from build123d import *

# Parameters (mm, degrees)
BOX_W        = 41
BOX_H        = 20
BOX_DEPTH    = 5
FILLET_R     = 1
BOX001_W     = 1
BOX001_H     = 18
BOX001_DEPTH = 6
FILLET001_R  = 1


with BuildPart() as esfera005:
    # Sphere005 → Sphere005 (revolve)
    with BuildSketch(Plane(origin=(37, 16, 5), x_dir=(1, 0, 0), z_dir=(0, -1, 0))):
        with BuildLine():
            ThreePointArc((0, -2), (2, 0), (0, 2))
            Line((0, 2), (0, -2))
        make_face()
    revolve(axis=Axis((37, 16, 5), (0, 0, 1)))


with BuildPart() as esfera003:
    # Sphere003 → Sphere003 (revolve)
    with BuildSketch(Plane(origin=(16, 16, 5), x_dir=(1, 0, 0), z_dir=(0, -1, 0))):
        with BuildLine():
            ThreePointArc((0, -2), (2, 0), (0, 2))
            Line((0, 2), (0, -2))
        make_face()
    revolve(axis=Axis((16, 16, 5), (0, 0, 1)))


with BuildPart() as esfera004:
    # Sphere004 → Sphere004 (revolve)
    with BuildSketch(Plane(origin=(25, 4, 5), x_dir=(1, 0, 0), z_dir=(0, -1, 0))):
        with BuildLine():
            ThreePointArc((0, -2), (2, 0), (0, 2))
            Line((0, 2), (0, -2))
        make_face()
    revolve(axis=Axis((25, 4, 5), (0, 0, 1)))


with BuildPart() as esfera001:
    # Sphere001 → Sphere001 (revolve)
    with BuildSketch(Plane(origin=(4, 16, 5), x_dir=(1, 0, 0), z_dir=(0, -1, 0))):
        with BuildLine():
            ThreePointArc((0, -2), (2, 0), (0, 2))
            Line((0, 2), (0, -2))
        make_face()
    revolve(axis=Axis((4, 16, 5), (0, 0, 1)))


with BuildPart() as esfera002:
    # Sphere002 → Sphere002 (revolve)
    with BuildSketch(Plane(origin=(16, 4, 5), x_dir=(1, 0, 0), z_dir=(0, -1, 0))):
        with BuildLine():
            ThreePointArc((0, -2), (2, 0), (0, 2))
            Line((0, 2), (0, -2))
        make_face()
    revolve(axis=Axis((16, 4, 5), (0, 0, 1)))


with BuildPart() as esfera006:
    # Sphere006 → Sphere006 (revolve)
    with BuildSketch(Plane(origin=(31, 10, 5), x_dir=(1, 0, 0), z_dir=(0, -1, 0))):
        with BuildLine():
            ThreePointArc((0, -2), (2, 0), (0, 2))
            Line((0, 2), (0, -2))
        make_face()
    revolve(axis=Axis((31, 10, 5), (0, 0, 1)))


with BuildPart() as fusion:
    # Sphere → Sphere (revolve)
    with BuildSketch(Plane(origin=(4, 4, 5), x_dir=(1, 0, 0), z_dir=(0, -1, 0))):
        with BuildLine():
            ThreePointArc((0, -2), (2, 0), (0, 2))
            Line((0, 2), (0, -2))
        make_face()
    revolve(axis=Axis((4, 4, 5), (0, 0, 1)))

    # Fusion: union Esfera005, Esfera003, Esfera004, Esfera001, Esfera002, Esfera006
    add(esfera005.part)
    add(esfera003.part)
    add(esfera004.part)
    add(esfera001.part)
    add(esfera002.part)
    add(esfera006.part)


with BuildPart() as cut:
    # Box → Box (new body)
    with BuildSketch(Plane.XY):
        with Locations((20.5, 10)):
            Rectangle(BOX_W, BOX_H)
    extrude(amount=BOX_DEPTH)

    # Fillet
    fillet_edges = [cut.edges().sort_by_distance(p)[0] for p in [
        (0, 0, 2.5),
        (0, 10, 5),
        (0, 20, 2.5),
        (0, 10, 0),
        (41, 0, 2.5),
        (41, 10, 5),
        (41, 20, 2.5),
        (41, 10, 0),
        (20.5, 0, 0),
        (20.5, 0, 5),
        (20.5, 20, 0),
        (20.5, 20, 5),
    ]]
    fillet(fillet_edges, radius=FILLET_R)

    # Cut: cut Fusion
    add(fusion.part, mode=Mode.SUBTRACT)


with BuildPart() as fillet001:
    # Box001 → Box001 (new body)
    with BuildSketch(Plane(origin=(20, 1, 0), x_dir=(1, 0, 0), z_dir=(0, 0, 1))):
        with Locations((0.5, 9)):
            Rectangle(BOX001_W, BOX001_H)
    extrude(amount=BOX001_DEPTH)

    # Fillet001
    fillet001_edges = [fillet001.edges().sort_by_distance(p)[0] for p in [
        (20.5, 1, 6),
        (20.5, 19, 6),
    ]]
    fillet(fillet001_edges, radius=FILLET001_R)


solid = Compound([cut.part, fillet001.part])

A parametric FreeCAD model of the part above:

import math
import FreeCAD as App
import Part
import Sketcher
Q = App.Units.Quantity


def edges_at(feature, points):
    """Names of the edges that pass closest to the given points."""
    edges = feature.Shape.Edges
    near = lambda p: min(range(len(edges)), key=lambda i: edges[i].distToShape(Part.Vertex(*p))[0])
    return sorted({f"Edge{near(p) + 1}" for p in points})


def add_polygon(sketch, points):
    """Adds a closed chain of lines whose ends are joined by coincident constraints."""
    first, n = sketch.GeometryCount, len(points)
    for a, b in zip(points, points[1:] + points[:1]):
        sketch.addGeometry(Part.LineSegment(App.Vector(*a, 0), App.Vector(*b, 0)), False)
    for i in range(n):
        sketch.addConstraint(Sketcher.Constraint("Coincident", first + i, 2, first + (i + 1) % n, 1))

doc = App.newDocument("Part")
params = doc.addObject("Spreadsheet::Sheet", "Params")
for row, (alias, value) in enumerate([
    ("sketch1_radius", "2 mm"),
    ("revolution_angle", "360 deg"),
    ("sketch2_radius", "2 mm"),
    ("revolution2_angle", "360 deg"),
    ("sketch3_radius", "2 mm"),
    ("revolution3_angle", "360 deg"),
    ("sketch4_radius", "2 mm"),
    ("revolution4_angle", "360 deg"),
    ("sketch5_radius", "2 mm"),
    ("revolution5_angle", "360 deg"),
    ("sketch6_radius", "2 mm"),
    ("revolution6_angle", "360 deg"),
    ("sketch7_radius", "2 mm"),
    ("revolution7_angle", "360 deg"),
    ("sketch8_width", "41 mm"),
    ("sketch8_height", "20 mm"),
    ("pad1_length", "5 mm"),
    ("fillet_radius", "1 mm"),
    ("sketch9_width", "1 mm"),
    ("sketch9_height", "18 mm"),
    ("pad2_length", "6 mm"),
    ("fillet2_radius", "1 mm"),
], start=1):
    params.set(f"A{row}", alias)
    params.set(f"B{row}", "=" + value)
    params.setAlias(f"B{row}", alias)

body = doc.addObject("PartDesign::Body", "Body")

# Sketch on XZ plane
sketch1 = doc.addObject("Sketcher::SketchObject", "Sketch")
body.addObject(sketch1)
sketch1.AttachmentSupport = (doc.XZ_Plane, [""])
sketch1.MapMode = "FlatFace"
sketch1.AttachmentOffset = App.Placement(App.Vector(0, 0, -16), App.Rotation())
sketch1.addGeometry([
    Part.ArcOfCircle(Part.Circle(App.Vector(37, 5, 0), App.Vector(0, 0, 1), 2), math.radians(-90), math.radians(90)),
    Part.LineSegment(App.Vector(37, 7, 0), App.Vector(37, 3, 0)),
], False)
sketch1.addGeometry(Part.LineSegment(App.Vector(37, 3, 0), App.Vector(37, 7, 0)), True)  # axis
sketch1.addConstraint([
    Sketcher.Constraint("Coincident", 0, 1, 1, 2),
    Sketcher.Constraint("Coincident", 1, 1, 0, 2),
    Sketcher.Constraint("Vertical", 1),
    Sketcher.Constraint("Vertical", 2),
    Sketcher.Constraint("Coincident", 2, 1, 0, 1),
    Sketcher.Constraint("Equal", 1, 2),
    Sketcher.Constraint("Radius", 0, Q("2 mm")),
    Sketcher.Constraint("DistanceX", -1, 1, 0, 3, Q("37 mm")),
    Sketcher.Constraint("DistanceY", -1, 1, 0, 3, Q("5 mm")),
    Sketcher.Constraint("DistanceX", -1, 1, 0, 1, Q("37 mm")),
])
sketch1.setExpression("Constraints[6]", "Params.sketch1_radius")
revolution = doc.addObject("PartDesign::Revolution", "Revolution")
body.addObject(revolution)
revolution.Profile = sketch1
revolution.ReferenceAxis = (sketch1, ["Axis0"])
revolution.setExpression("Angle", "Params.revolution_angle")
body2 = doc.addObject("PartDesign::Body", "Body001")

# Sketch on XZ plane
sketch2 = doc.addObject("Sketcher::SketchObject", "Sketch001")
body2.addObject(sketch2)
sketch2.AttachmentSupport = (doc.getObject("XZ_Plane001"), [""])
sketch2.MapMode = "FlatFace"
sketch2.AttachmentOffset = App.Placement(App.Vector(0, 0, -16), App.Rotation())
sketch2.addGeometry([
    Part.ArcOfCircle(Part.Circle(App.Vector(16, 5, 0), App.Vector(0, 0, 1), 2), math.radians(-90), math.radians(90)),
    Part.LineSegment(App.Vector(16, 7, 0), App.Vector(16, 3, 0)),
], False)
sketch2.addGeometry(Part.LineSegment(App.Vector(16, 3, 0), App.Vector(16, 7, 0)), True)  # axis
sketch2.addConstraint([
    Sketcher.Constraint("Coincident", 0, 1, 1, 2),
    Sketcher.Constraint("Coincident", 1, 1, 0, 2),
    Sketcher.Constraint("Vertical", 1),
    Sketcher.Constraint("Vertical", 2),
    Sketcher.Constraint("Coincident", 2, 1, 0, 1),
    Sketcher.Constraint("Equal", 1, 2),
    Sketcher.Constraint("Radius", 0, Q("2 mm")),
    Sketcher.Constraint("DistanceX", -1, 1, 0, 3, Q("16 mm")),
    Sketcher.Constraint("DistanceY", -1, 1, 0, 3, Q("5 mm")),
    Sketcher.Constraint("DistanceX", -1, 1, 0, 1, Q("16 mm")),
])
sketch2.setExpression("Constraints[6]", "Params.sketch2_radius")
revolution2 = doc.addObject("PartDesign::Revolution", "Revolution001")
body2.addObject(revolution2)
revolution2.Profile = sketch2
revolution2.ReferenceAxis = (sketch2, ["Axis0"])
revolution2.setExpression("Angle", "Params.revolution2_angle")
body3 = doc.addObject("PartDesign::Body", "Body002")

# Sketch on XZ plane
sketch3 = doc.addObject("Sketcher::SketchObject", "Sketch002")
body3.addObject(sketch3)
sketch3.AttachmentSupport = (doc.getObject("XZ_Plane002"), [""])
sketch3.MapMode = "FlatFace"
sketch3.AttachmentOffset = App.Placement(App.Vector(0, 0, -4), App.Rotation())
sketch3.addGeometry([
    Part.ArcOfCircle(Part.Circle(App.Vector(25, 5, 0), App.Vector(0, 0, 1), 2), math.radians(-90), math.radians(90)),
    Part.LineSegment(App.Vector(25, 7, 0), App.Vector(25, 3, 0)),
], False)
sketch3.addGeometry(Part.LineSegment(App.Vector(25, 3, 0), App.Vector(25, 7, 0)), True)  # axis
sketch3.addConstraint([
    Sketcher.Constraint("Coincident", 0, 1, 1, 2),
    Sketcher.Constraint("Coincident", 1, 1, 0, 2),
    Sketcher.Constraint("Vertical", 1),
    Sketcher.Constraint("Vertical", 2),
    Sketcher.Constraint("Coincident", 2, 1, 0, 1),
    Sketcher.Constraint("Equal", 1, 2),
    Sketcher.Constraint("Radius", 0, Q("2 mm")),
    Sketcher.Constraint("DistanceX", -1, 1, 0, 3, Q("25 mm")),
    Sketcher.Constraint("DistanceY", -1, 1, 0, 3, Q("5 mm")),
    Sketcher.Constraint("DistanceX", -1, 1, 0, 1, Q("25 mm")),
])
sketch3.setExpression("Constraints[6]", "Params.sketch3_radius")
revolution3 = doc.addObject("PartDesign::Revolution", "Revolution002")
body3.addObject(revolution3)
revolution3.Profile = sketch3
revolution3.ReferenceAxis = (sketch3, ["Axis0"])
revolution3.setExpression("Angle", "Params.revolution3_angle")
body4 = doc.addObject("PartDesign::Body", "Body003")

# Sketch on XZ plane
sketch4 = doc.addObject("Sketcher::SketchObject", "Sketch003")
body4.addObject(sketch4)
sketch4.AttachmentSupport = (doc.getObject("XZ_Plane003"), [""])
sketch4.MapMode = "FlatFace"
sketch4.AttachmentOffset = App.Placement(App.Vector(0, 0, -16), App.Rotation())
sketch4.addGeometry([
    Part.ArcOfCircle(Part.Circle(App.Vector(4, 5, 0), App.Vector(0, 0, 1), 2), math.radians(-90), math.radians(90)),
    Part.LineSegment(App.Vector(4, 7, 0), App.Vector(4, 3, 0)),
], False)
sketch4.addGeometry(Part.LineSegment(App.Vector(4, 3, 0), App.Vector(4, 7, 0)), True)  # axis
sketch4.addConstraint([
    Sketcher.Constraint("Coincident", 0, 1, 1, 2),
    Sketcher.Constraint("Coincident", 1, 1, 0, 2),
    Sketcher.Constraint("Vertical", 1),
    Sketcher.Constraint("Vertical", 2),
    Sketcher.Constraint("Coincident", 2, 1, 0, 1),
    Sketcher.Constraint("Equal", 1, 2),
    Sketcher.Constraint("Radius", 0, Q("2 mm")),
    Sketcher.Constraint("DistanceX", -1, 1, 0, 3, Q("4 mm")),
    Sketcher.Constraint("DistanceY", -1, 1, 0, 3, Q("5 mm")),
    Sketcher.Constraint("DistanceX", -1, 1, 0, 1, Q("4 mm")),
])
sketch4.setExpression("Constraints[6]", "Params.sketch4_radius")
revolution4 = doc.addObject("PartDesign::Revolution", "Revolution003")
body4.addObject(revolution4)
revolution4.Profile = sketch4
revolution4.ReferenceAxis = (sketch4, ["Axis0"])
revolution4.setExpression("Angle", "Params.revolution4_angle")
body5 = doc.addObject("PartDesign::Body", "Body004")

# Sketch on XZ plane
sketch5 = doc.addObject("Sketcher::SketchObject", "Sketch004")
body5.addObject(sketch5)
sketch5.AttachmentSupport = (doc.getObject("XZ_Plane004"), [""])
sketch5.MapMode = "FlatFace"
sketch5.AttachmentOffset = App.Placement(App.Vector(0, 0, -4), App.Rotation())
sketch5.addGeometry([
    Part.ArcOfCircle(Part.Circle(App.Vector(16, 5, 0), App.Vector(0, 0, 1), 2), math.radians(-90), math.radians(90)),
    Part.LineSegment(App.Vector(16, 7, 0), App.Vector(16, 3, 0)),
], False)
sketch5.addGeometry(Part.LineSegment(App.Vector(16, 3, 0), App.Vector(16, 7, 0)), True)  # axis
sketch5.addConstraint([
    Sketcher.Constraint("Coincident", 0, 1, 1, 2),
    Sketcher.Constraint("Coincident", 1, 1, 0, 2),
    Sketcher.Constraint("Vertical", 1),
    Sketcher.Constraint("Vertical", 2),
    Sketcher.Constraint("Coincident", 2, 1, 0, 1),
    Sketcher.Constraint("Equal", 1, 2),
    Sketcher.Constraint("Radius", 0, Q("2 mm")),
    Sketcher.Constraint("DistanceX", -1, 1, 0, 3, Q("16 mm")),
    Sketcher.Constraint("DistanceY", -1, 1, 0, 3, Q("5 mm")),
    Sketcher.Constraint("DistanceX", -1, 1, 0, 1, Q("16 mm")),
])
sketch5.setExpression("Constraints[6]", "Params.sketch5_radius")
revolution5 = doc.addObject("PartDesign::Revolution", "Revolution004")
body5.addObject(revolution5)
revolution5.Profile = sketch5
revolution5.ReferenceAxis = (sketch5, ["Axis0"])
revolution5.setExpression("Angle", "Params.revolution5_angle")
body6 = doc.addObject("PartDesign::Body", "Body005")

# Sketch on XZ plane
sketch6 = doc.addObject("Sketcher::SketchObject", "Sketch005")
body6.addObject(sketch6)
sketch6.AttachmentSupport = (doc.getObject("XZ_Plane005"), [""])
sketch6.MapMode = "FlatFace"
sketch6.AttachmentOffset = App.Placement(App.Vector(0, 0, -10), App.Rotation())
sketch6.addGeometry([
    Part.ArcOfCircle(Part.Circle(App.Vector(31, 5, 0), App.Vector(0, 0, 1), 2), math.radians(-90), math.radians(90)),
    Part.LineSegment(App.Vector(31, 7, 0), App.Vector(31, 3, 0)),
], False)
sketch6.addGeometry(Part.LineSegment(App.Vector(31, 3, 0), App.Vector(31, 7, 0)), True)  # axis
sketch6.addConstraint([
    Sketcher.Constraint("Coincident", 0, 1, 1, 2),
    Sketcher.Constraint("Coincident", 1, 1, 0, 2),
    Sketcher.Constraint("Vertical", 1),
    Sketcher.Constraint("Vertical", 2),
    Sketcher.Constraint("Coincident", 2, 1, 0, 1),
    Sketcher.Constraint("Equal", 1, 2),
    Sketcher.Constraint("Radius", 0, Q("2 mm")),
    Sketcher.Constraint("DistanceX", -1, 1, 0, 3, Q("31 mm")),
    Sketcher.Constraint("DistanceY", -1, 1, 0, 3, Q("5 mm")),
    Sketcher.Constraint("DistanceX", -1, 1, 0, 1, Q("31 mm")),
])
sketch6.setExpression("Constraints[6]", "Params.sketch6_radius")
revolution6 = doc.addObject("PartDesign::Revolution", "Revolution005")
body6.addObject(revolution6)
revolution6.Profile = sketch6
revolution6.ReferenceAxis = (sketch6, ["Axis0"])
revolution6.setExpression("Angle", "Params.revolution6_angle")
body7 = doc.addObject("PartDesign::Body", "Body006")
body7.AllowCompound = True

# Sketch on XZ plane
sketch7 = doc.addObject("Sketcher::SketchObject", "Sketch006")
body7.addObject(sketch7)
sketch7.AttachmentSupport = (doc.getObject("XZ_Plane006"), [""])
sketch7.MapMode = "FlatFace"
sketch7.AttachmentOffset = App.Placement(App.Vector(0, 0, -4), App.Rotation())
sketch7.addGeometry([
    Part.ArcOfCircle(Part.Circle(App.Vector(4, 5, 0), App.Vector(0, 0, 1), 2), math.radians(-90), math.radians(90)),
    Part.LineSegment(App.Vector(4, 7, 0), App.Vector(4, 3, 0)),
], False)
sketch7.addGeometry(Part.LineSegment(App.Vector(4, 3, 0), App.Vector(4, 7, 0)), True)  # axis
sketch7.addConstraint([
    Sketcher.Constraint("Coincident", 0, 1, 1, 2),
    Sketcher.Constraint("Coincident", 1, 1, 0, 2),
    Sketcher.Constraint("Vertical", 1),
    Sketcher.Constraint("Vertical", 2),
    Sketcher.Constraint("Coincident", 2, 1, 0, 1),
    Sketcher.Constraint("Equal", 1, 2),
    Sketcher.Constraint("Radius", 0, Q("2 mm")),
    Sketcher.Constraint("DistanceX", -1, 1, 0, 3, Q("4 mm")),
    Sketcher.Constraint("DistanceY", -1, 1, 0, 3, Q("5 mm")),
    Sketcher.Constraint("DistanceX", -1, 1, 0, 1, Q("4 mm")),
])
sketch7.setExpression("Constraints[6]", "Params.sketch7_radius")
revolution7 = doc.addObject("PartDesign::Revolution", "Revolution006")
body7.addObject(revolution7)
revolution7.Profile = sketch7
revolution7.ReferenceAxis = (sketch7, ["Axis0"])
revolution7.setExpression("Angle", "Params.revolution7_angle")
doc.recompute()

boolean = doc.addObject("PartDesign::Boolean", "Boolean")
body7.addObject(boolean)
boolean.Type = "Fuse"
boolean.addObjects([body])
doc.recompute()

boolean2 = doc.addObject("PartDesign::Boolean", "Boolean001")
body7.addObject(boolean2)
boolean2.Type = "Fuse"
boolean2.addObjects([body2])
doc.recompute()

boolean3 = doc.addObject("PartDesign::Boolean", "Boolean002")
body7.addObject(boolean3)
boolean3.Type = "Fuse"
boolean3.addObjects([body3])
doc.recompute()

boolean4 = doc.addObject("PartDesign::Boolean", "Boolean003")
body7.addObject(boolean4)
boolean4.Type = "Fuse"
boolean4.addObjects([body4])
doc.recompute()

boolean5 = doc.addObject("PartDesign::Boolean", "Boolean004")
body7.addObject(boolean5)
boolean5.Type = "Fuse"
boolean5.addObjects([body5])
doc.recompute()

boolean6 = doc.addObject("PartDesign::Boolean", "Boolean005")
body7.addObject(boolean6)
boolean6.Type = "Fuse"
boolean6.addObjects([body6])
body8 = doc.addObject("PartDesign::Body", "Body007")

# Sketch on XY plane
sketch8 = doc.addObject("Sketcher::SketchObject", "Sketch007")
body8.addObject(sketch8)
sketch8.AttachmentSupport = (doc.getObject("XY_Plane007"), [""])
sketch8.MapMode = "FlatFace"
add_polygon(sketch8, [(0, 20), (0, 0), (41, 0), (41, 20)])  # lines 0-3
sketch8.addConstraint([
    Sketcher.Constraint("Vertical", 0),
    Sketcher.Constraint("Horizontal", 1),
    Sketcher.Constraint("Vertical", 2),
    Sketcher.Constraint("Horizontal", 3),
    Sketcher.Constraint("Coincident", 0, 2, -1, 1),
    Sketcher.Constraint("DistanceX", 1, 1, 1, 2, Q("41 mm")),
    Sketcher.Constraint("DistanceY", 0, 2, 0, 1, Q("20 mm")),
])
sketch8.setExpression("Constraints[9]", "Params.sketch8_width")
sketch8.setExpression("Constraints[10]", "Params.sketch8_height")
pad1 = doc.addObject("PartDesign::Pad", "Pad")
body8.addObject(pad1)
pad1.Profile = sketch8
pad1.setExpression("Length", "Params.pad1_length")
doc.recompute()

fillet = doc.addObject("PartDesign::Fillet", "Fillet")
body8.addObject(fillet)
fillet.Base = (pad1, ["Edge1"])
fillet.UseAllEdges = True
fillet.setExpression("Radius", "Params.fillet_radius")
doc.recompute()

boolean7 = doc.addObject("PartDesign::Boolean", "Boolean006")
body8.addObject(boolean7)
boolean7.Type = "Cut"
boolean7.addObjects([body7])
body9 = doc.addObject("PartDesign::Body", "Body008")

# Sketch on XY plane
sketch9 = doc.addObject("Sketcher::SketchObject", "Sketch008")
body9.addObject(sketch9)
sketch9.AttachmentSupport = (doc.getObject("XY_Plane008"), [""])
sketch9.MapMode = "FlatFace"
add_polygon(sketch9, [(20, 19), (20, 1), (21, 1), (21, 19)])  # lines 0-3
sketch9.addConstraint([
    Sketcher.Constraint("Vertical", 0),
    Sketcher.Constraint("Horizontal", 1),
    Sketcher.Constraint("Vertical", 2),
    Sketcher.Constraint("Horizontal", 3),
    Sketcher.Constraint("DistanceX", 1, 1, 1, 2, Q("1 mm")),
    Sketcher.Constraint("DistanceY", 0, 2, 0, 1, Q("18 mm")),
    Sketcher.Constraint("DistanceX", -1, 1, 0, 2, Q("20 mm")),
    Sketcher.Constraint("DistanceY", -1, 1, 0, 2, Q("1 mm")),
])
sketch9.setExpression("Constraints[8]", "Params.sketch9_width")
sketch9.setExpression("Constraints[9]", "Params.sketch9_height")
pad2 = doc.addObject("PartDesign::Pad", "Pad001")
body9.addObject(pad2)
pad2.Profile = sketch9
pad2.setExpression("Length", "Params.pad2_length")
doc.recompute()

fillet2 = doc.addObject("PartDesign::Fillet", "Fillet001")
body9.addObject(fillet2)
fillet2.Base = (pad2, edges_at(pad2, [(20.5, 1, 6), (20.5, 19, 6)]))
fillet2.setExpression("Radius", "Params.fillet2_radius")

doc.recompute()
